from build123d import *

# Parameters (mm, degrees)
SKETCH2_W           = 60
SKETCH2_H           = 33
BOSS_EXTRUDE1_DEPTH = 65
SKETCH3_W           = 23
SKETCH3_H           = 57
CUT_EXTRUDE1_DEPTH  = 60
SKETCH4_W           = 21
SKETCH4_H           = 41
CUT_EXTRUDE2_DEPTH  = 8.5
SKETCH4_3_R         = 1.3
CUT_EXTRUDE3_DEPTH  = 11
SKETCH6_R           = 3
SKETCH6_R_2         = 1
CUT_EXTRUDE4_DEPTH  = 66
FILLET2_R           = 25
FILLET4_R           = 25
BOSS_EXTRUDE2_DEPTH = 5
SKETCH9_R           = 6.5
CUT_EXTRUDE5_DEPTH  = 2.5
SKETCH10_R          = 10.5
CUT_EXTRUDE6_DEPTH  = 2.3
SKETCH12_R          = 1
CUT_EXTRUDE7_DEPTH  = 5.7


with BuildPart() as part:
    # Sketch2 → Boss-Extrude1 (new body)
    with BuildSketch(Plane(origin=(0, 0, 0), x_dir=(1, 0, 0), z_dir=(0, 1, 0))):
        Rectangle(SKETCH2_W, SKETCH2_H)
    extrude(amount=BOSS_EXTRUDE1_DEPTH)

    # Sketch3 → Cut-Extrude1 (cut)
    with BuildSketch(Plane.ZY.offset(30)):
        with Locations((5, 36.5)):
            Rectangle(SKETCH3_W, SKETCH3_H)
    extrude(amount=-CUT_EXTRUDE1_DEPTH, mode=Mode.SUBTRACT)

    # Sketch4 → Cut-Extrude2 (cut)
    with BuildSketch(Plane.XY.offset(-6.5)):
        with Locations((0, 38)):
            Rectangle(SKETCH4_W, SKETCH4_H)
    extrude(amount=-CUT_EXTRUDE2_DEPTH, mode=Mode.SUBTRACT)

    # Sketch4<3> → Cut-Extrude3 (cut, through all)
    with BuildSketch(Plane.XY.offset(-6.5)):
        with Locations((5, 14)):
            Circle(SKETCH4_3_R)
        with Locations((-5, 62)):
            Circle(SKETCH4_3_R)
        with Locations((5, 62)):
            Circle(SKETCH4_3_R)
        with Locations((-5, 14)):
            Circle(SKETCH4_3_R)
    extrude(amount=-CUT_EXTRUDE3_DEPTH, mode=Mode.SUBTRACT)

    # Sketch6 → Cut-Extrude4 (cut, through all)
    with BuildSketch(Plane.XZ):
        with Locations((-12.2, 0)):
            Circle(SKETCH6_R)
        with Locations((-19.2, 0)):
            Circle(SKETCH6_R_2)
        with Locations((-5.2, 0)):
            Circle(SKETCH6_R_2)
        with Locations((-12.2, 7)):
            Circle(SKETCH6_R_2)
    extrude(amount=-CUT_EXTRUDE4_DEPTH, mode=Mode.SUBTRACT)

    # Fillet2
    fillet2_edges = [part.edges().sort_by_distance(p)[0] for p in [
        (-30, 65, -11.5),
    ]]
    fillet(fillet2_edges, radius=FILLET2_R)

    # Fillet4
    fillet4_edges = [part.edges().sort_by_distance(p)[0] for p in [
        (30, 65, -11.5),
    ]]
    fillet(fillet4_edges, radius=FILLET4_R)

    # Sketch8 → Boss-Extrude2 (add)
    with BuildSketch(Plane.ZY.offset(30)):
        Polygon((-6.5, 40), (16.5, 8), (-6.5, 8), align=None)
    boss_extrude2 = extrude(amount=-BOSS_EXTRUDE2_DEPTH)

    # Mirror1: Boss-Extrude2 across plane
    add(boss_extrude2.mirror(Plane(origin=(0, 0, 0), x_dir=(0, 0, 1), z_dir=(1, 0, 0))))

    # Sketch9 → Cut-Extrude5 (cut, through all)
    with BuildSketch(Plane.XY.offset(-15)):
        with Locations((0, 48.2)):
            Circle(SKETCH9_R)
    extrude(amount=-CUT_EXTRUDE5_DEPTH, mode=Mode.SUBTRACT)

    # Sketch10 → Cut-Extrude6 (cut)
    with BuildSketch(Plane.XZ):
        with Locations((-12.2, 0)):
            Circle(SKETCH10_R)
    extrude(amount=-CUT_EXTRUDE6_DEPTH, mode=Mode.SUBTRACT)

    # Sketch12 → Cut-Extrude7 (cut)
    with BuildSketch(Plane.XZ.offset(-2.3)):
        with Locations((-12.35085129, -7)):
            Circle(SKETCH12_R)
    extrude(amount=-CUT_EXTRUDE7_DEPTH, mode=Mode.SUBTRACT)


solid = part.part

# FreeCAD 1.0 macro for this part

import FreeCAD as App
import Part
import Sketcher
Q = App.Units.Quantity


def edges_at(feature, points):
    """Names of the edges that pass closest to the given points."""
    edges = feature.Shape.Edges
    near = lambda p: min(range(len(edges)), key=lambda i: edges[i].distToShape(Part.Vertex(*p))[0])
    return sorted({f"Edge{near(p) + 1}" for p in points})


def add_polygon(sketch, points):
    """Adds a closed chain of lines whose ends are joined by coincident constraints."""
    first, n = sketch.GeometryCount, len(points)
    for a, b in zip(points, points[1:] + points[:1]):
        sketch.addGeometry(Part.LineSegment(App.Vector(*a, 0), App.Vector(*b, 0)), False)
    for i in range(n):
        sketch.addConstraint(Sketcher.Constraint("Coincident", first + i, 2, first + (i + 1) % n, 1))

doc = App.newDocument("Part")
body = doc.addObject("PartDesign::Body", "Body")

# Sketch on XZ plane
sketch1 = body.newObject("Sketcher::SketchObject", "Sketch")
sketch1.AttachmentSupport = (doc.getObject("XZ_Plane"), [""])
sketch1.MapMode = "FlatFace"
add_polygon(sketch1, [(-30, -16), (-30, 16), (30, 16), (30, -16)])  # lines 0-3
sketch1.addConstraint([
    Sketcher.Constraint("Vertical", 0),
    Sketcher.Constraint("Horizontal", 1),
    Sketcher.Constraint("Vertical", 2),
    Sketcher.Constraint("Horizontal", 3),
    Sketcher.Constraint("Symmetric", 0, 2, 2, 2, -1, 1),
    Sketcher.Constraint("DistanceX", 1, 1, 1, 2, Q("60 mm")),
    Sketcher.Constraint("DistanceY", 0, 1, 0, 2, Q("33 mm")),
])
pad1 = body.newObject("PartDesign::Pad", "Pad")
pad1.Profile = sketch1
pad1.Length = 65
pad1.Reversed = True

# Sketch on YZ plane
sketch2 = body.newObject("Sketcher::SketchObject", "Sketch001")
sketch2.AttachmentSupport = (doc.getObject("YZ_Plane"), [""])
sketch2.MapMode = "FlatFace"
sketch2.AttachmentOffset = App.Placement(App.Vector(0, 0, -30), App.Rotation())
add_polygon(sketch2, [(65, -6), (8, -6), (8, 16), (65, 16)])  # lines 0-3
sketch2.addConstraint([
    Sketcher.Constraint("Horizontal", 0),
    Sketcher.Constraint("Vertical", 1),
    Sketcher.Constraint("Horizontal", 2),
    Sketcher.Constraint("Vertical", 3),
    Sketcher.Constraint("DistanceX", 0, 2, 0, 1, Q("57 mm")),
    Sketcher.Constraint("DistanceY", 1, 1, 1, 2, Q("23 mm")),
    Sketcher.Constraint("DistanceX", -1, 1, 0, 2, Q("8 mm")),
    Sketcher.Constraint("DistanceY", 0, 2, -1, 1, Q("6.5 mm")),
])
pocket1 = body.newObject("PartDesign::Pocket", "Pocket")
pocket1.Profile = sketch2
pocket1.Length = 60
pocket1.Reversed = True

# Sketch on XY plane
sketch3 = body.newObject("Sketcher::SketchObject", "Sketch002")
sketch3.AttachmentSupport = (doc.getObject("XY_Plane"), [""])
sketch3.MapMode = "FlatFace"
sketch3.AttachmentOffset = App.Placement(App.Vector(0, 0, -6.5), App.Rotation())
add_polygon(sketch3, [(-10, 58), (-10, 18), (10, 18), (10, 58)])  # lines 0-3
sketch3.addConstraint([
    Sketcher.Constraint("Vertical", 0),
    Sketcher.Constraint("Horizontal", 1),
    Sketcher.Constraint("Vertical", 2),
    Sketcher.Constraint("Horizontal", 3),
    Sketcher.Constraint("DistanceX", 1, 1, 1, 2, Q("21 mm")),
    Sketcher.Constraint("DistanceY", 0, 2, 0, 1, Q("41 mm")),
    Sketcher.Constraint("DistanceX", 0, 2, -1, 1, Q("10.5 mm")),
    Sketcher.Constraint("DistanceY", -1, 1, 0, 2, Q("17.5 mm")),
])
pocket2 = body.newObject("PartDesign::Pocket", "Pocket001")
pocket2.Profile = sketch3
pocket2.Length = 8.5

# Sketch on XY plane
sketch4 = body.newObject("Sketcher::SketchObject", "Sketch003")
sketch4.AttachmentSupport = (doc.getObject("XY_Plane"), [""])
sketch4.MapMode = "FlatFace"
sketch4.AttachmentOffset = App.Placement(App.Vector(0, 0, -6.5), App.Rotation())
sketch4.addGeometry([
    Part.Circle(App.Vector(5, 14, 0), App.Vector(0, 0, 1), 1.3),
    Part.Circle(App.Vector(-5, 62, 0), App.Vector(0, 0, 1), 1.3),
    Part.Circle(App.Vector(5, 62, 0), App.Vector(0, 0, 1), 1.3),
    Part.Circle(App.Vector(-5, 14, 0), App.Vector(0, 0, 1), 1.3),
], False)
sketch4.addConstraint([
    Sketcher.Constraint("Equal", 0, 1),
    Sketcher.Constraint("Equal", 1, 2),
    Sketcher.Constraint("Equal", 2, 3),
    Sketcher.Constraint("Symmetric", 1, 3, 2, 3, -2),
    Sketcher.Constraint("Symmetric", 0, 3, 3, 3, -2),
    Sketcher.Constraint("Vertical", 0, 3, 2, 3),
    Sketcher.Constraint("Diameter", 0, Q("2.6 mm")),
    Sketcher.Constraint("DistanceX", -1, 1, 0, 3, Q("5 mm")),
    Sketcher.Constraint("DistanceY", -1, 1, 0, 3, Q("14 mm")),
    Sketcher.Constraint("DistanceY", -1, 1, 1, 3, Q("62 mm")),
])
pocket3 = body.newObject("PartDesign::Pocket", "Pocket002")
pocket3.Profile = sketch4
pocket3.Type = "ThroughAll"

# Sketch on XZ plane
sketch5 = body.newObject("Sketcher::SketchObject", "Sketch004")
sketch5.AttachmentSupport = (doc.getObject("XZ_Plane"), [""])
sketch5.MapMode = "FlatFace"
sketch5.addGeometry([
    Part.Circle(App.Vector(-12.2, 0, 0), App.Vector(0, 0, 1), 3),
    Part.Circle(App.Vector(-19.2, 0, 0), App.Vector(0, 0, 1), 1),
    Part.Circle(App.Vector(-5.2, 0, 0), App.Vector(0, 0, 1), 1),
    Part.Circle(App.Vector(-12.2, 7, 0), App.Vector(0, 0, 1), 1),
], False)
sketch5.addConstraint([
    Sketcher.Constraint("Equal", 1, 2),
    Sketcher.Constraint("Equal", 2, 3),
    Sketcher.Constraint("PointOnObject", 0, 3, -1),
    Sketcher.Constraint("PointOnObject", 1, 3, -1),
    Sketcher.Constraint("PointOnObject", 2, 3, -1),
    Sketcher.Constraint("Vertical", 0, 3, 3, 3),
    Sketcher.Constraint("Diameter", 0, Q("6 mm")),
    Sketcher.Constraint("Diameter", 1, Q("2 mm")),
    Sketcher.Constraint("DistanceY", -1, 1, 3, 3, Q("7 mm")),
    Sketcher.Constraint("DistanceX", 1, 3, 0, 3, Q("7 mm")),
    Sketcher.Constraint("DistanceX", 0, 3, 2, 3, Q("7 mm")),
    Sketcher.Constraint("DistanceX", 0, 3, -1, 1, Q("12.2 mm")),
])
pocket4 = body.newObject("PartDesign::Pocket", "Pocket003")
pocket4.Profile = sketch5
pocket4.Type = "ThroughAll"
doc.recompute()

fillet = body.newObject("PartDesign::Fillet", "Fillet")
fillet.Base = (pocket4, edges_at(pocket4, [(-30, 65, -11.5)]))
fillet.Radius = 25
doc.recompute()

fillet2 = body.newObject("PartDesign::Fillet", "Fillet001")
fillet2.Base = (fillet, edges_at(fillet, [(30, 65, -11.5)]))
fillet2.Radius = 25

# Sketch on YZ plane
sketch6 = body.newObject("Sketcher::SketchObject", "Sketch005")
sketch6.AttachmentSupport = (doc.getObject("YZ_Plane"), [""])
sketch6.MapMode = "FlatFace"
sketch6.AttachmentOffset = App.Placement(App.Vector(0, 0, -30), App.Rotation())
add_polygon(sketch6, [(8, 16), (40, -6), (8, -6)])  # lines 0-2
sketch6.addConstraint([
    Sketcher.Constraint("Horizontal", 1),
    Sketcher.Constraint("Vertical", 2),
    Sketcher.Constraint("DistanceX", 1, 2, 1, 1, Q("32 mm")),
    Sketcher.Constraint("DistanceY", 2, 1, 2, 2, Q("23 mm")),
    Sketcher.Constraint("DistanceX", -1, 1, 0, 2, Q("40 mm")),
    Sketcher.Constraint("DistanceY", 0, 2, -1, 1, Q("6.5 mm")),
])
pad2 = body.newObject("PartDesign::Pad", "Pad001")
pad2.Profile = sketch6
pad2.Length = 5
doc.recompute()

mirrored = body.newObject("PartDesign::Mirrored", "Mirrored")
mirrored.Originals = [pad2]
mirrored.MirrorPlane = (doc.getObject("YZ_Plane"), [""])
body.Tip = mirrored

# Sketch on XY plane
sketch7 = body.newObject("Sketcher::SketchObject", "Sketch006")
sketch7.AttachmentSupport = (doc.getObject("XY_Plane"), [""])
sketch7.MapMode = "FlatFace"
sketch7.AttachmentOffset = App.Placement(App.Vector(0, 0, -15), App.Rotation())
sketch7.addGeometry(Part.Circle(App.Vector(0, 48, 0), App.Vector(0, 0, 1), 6), False)
sketch7.addConstraint([
    Sketcher.Constraint("PointOnObject", 0, 3, -2),
    Sketcher.Constraint("Diameter", 0, Q("13 mm")),
    Sketcher.Constraint("DistanceY", -1, 1, 0, 3, Q("48.2 mm")),
])
pocket5 = body.newObject("PartDesign::Pocket", "Pocket004")
pocket5.Profile = sketch7
pocket5.Type = "ThroughAll"

# Sketch on XZ plane
sketch8 = body.newObject("Sketcher::SketchObject", "Sketch007")
sketch8.AttachmentSupport = (doc.getObject("XZ_Plane"), [""])
sketch8.MapMode = "FlatFace"
sketch8.addGeometry(Part.Circle(App.Vector(-12, 0, 0), App.Vector(0, 0, 1), 10), False)
sketch8.addConstraint([
    Sketcher.Constraint("PointOnObject", 0, 3, -1),
    Sketcher.Constraint("Diameter", 0, Q("21 mm")),
    Sketcher.Constraint("DistanceX", 0, 3, -1, 1, Q("12.2 mm")),
])
pocket6 = body.newObject("PartDesign::Pocket", "Pocket005")
pocket6.Profile = sketch8
pocket6.Length = 2.3

# Sketch on XZ plane
sketch9 = body.newObject("Sketcher::SketchObject", "Sketch008")
sketch9.AttachmentSupport = (doc.getObject("XZ_Plane"), [""])
sketch9.MapMode = "FlatFace"
sketch9.AttachmentOffset = App.Placement(App.Vector(0, 0, -2.3), App.Rotation())
sketch9.addGeometry(Part.Circle(App.Vector(-12.4, -7, 0), App.Vector(0, 0, 1), 1), False)
sketch9.addConstraint([
    Sketcher.Constraint("Diameter", 0, Q("2 mm")),
    Sketcher.Constraint("DistanceY", 0, 3, -1, 1, Q("7 mm")),
    Sketcher.Constraint("DistanceX", 0, 3, -1, 1, Q("12.350851 mm")),
])
pocket7 = body.newObject("PartDesign::Pocket", "Pocket006")
pocket7.Profile = sketch9
pocket7.Length = 5.7

doc.recompute()
